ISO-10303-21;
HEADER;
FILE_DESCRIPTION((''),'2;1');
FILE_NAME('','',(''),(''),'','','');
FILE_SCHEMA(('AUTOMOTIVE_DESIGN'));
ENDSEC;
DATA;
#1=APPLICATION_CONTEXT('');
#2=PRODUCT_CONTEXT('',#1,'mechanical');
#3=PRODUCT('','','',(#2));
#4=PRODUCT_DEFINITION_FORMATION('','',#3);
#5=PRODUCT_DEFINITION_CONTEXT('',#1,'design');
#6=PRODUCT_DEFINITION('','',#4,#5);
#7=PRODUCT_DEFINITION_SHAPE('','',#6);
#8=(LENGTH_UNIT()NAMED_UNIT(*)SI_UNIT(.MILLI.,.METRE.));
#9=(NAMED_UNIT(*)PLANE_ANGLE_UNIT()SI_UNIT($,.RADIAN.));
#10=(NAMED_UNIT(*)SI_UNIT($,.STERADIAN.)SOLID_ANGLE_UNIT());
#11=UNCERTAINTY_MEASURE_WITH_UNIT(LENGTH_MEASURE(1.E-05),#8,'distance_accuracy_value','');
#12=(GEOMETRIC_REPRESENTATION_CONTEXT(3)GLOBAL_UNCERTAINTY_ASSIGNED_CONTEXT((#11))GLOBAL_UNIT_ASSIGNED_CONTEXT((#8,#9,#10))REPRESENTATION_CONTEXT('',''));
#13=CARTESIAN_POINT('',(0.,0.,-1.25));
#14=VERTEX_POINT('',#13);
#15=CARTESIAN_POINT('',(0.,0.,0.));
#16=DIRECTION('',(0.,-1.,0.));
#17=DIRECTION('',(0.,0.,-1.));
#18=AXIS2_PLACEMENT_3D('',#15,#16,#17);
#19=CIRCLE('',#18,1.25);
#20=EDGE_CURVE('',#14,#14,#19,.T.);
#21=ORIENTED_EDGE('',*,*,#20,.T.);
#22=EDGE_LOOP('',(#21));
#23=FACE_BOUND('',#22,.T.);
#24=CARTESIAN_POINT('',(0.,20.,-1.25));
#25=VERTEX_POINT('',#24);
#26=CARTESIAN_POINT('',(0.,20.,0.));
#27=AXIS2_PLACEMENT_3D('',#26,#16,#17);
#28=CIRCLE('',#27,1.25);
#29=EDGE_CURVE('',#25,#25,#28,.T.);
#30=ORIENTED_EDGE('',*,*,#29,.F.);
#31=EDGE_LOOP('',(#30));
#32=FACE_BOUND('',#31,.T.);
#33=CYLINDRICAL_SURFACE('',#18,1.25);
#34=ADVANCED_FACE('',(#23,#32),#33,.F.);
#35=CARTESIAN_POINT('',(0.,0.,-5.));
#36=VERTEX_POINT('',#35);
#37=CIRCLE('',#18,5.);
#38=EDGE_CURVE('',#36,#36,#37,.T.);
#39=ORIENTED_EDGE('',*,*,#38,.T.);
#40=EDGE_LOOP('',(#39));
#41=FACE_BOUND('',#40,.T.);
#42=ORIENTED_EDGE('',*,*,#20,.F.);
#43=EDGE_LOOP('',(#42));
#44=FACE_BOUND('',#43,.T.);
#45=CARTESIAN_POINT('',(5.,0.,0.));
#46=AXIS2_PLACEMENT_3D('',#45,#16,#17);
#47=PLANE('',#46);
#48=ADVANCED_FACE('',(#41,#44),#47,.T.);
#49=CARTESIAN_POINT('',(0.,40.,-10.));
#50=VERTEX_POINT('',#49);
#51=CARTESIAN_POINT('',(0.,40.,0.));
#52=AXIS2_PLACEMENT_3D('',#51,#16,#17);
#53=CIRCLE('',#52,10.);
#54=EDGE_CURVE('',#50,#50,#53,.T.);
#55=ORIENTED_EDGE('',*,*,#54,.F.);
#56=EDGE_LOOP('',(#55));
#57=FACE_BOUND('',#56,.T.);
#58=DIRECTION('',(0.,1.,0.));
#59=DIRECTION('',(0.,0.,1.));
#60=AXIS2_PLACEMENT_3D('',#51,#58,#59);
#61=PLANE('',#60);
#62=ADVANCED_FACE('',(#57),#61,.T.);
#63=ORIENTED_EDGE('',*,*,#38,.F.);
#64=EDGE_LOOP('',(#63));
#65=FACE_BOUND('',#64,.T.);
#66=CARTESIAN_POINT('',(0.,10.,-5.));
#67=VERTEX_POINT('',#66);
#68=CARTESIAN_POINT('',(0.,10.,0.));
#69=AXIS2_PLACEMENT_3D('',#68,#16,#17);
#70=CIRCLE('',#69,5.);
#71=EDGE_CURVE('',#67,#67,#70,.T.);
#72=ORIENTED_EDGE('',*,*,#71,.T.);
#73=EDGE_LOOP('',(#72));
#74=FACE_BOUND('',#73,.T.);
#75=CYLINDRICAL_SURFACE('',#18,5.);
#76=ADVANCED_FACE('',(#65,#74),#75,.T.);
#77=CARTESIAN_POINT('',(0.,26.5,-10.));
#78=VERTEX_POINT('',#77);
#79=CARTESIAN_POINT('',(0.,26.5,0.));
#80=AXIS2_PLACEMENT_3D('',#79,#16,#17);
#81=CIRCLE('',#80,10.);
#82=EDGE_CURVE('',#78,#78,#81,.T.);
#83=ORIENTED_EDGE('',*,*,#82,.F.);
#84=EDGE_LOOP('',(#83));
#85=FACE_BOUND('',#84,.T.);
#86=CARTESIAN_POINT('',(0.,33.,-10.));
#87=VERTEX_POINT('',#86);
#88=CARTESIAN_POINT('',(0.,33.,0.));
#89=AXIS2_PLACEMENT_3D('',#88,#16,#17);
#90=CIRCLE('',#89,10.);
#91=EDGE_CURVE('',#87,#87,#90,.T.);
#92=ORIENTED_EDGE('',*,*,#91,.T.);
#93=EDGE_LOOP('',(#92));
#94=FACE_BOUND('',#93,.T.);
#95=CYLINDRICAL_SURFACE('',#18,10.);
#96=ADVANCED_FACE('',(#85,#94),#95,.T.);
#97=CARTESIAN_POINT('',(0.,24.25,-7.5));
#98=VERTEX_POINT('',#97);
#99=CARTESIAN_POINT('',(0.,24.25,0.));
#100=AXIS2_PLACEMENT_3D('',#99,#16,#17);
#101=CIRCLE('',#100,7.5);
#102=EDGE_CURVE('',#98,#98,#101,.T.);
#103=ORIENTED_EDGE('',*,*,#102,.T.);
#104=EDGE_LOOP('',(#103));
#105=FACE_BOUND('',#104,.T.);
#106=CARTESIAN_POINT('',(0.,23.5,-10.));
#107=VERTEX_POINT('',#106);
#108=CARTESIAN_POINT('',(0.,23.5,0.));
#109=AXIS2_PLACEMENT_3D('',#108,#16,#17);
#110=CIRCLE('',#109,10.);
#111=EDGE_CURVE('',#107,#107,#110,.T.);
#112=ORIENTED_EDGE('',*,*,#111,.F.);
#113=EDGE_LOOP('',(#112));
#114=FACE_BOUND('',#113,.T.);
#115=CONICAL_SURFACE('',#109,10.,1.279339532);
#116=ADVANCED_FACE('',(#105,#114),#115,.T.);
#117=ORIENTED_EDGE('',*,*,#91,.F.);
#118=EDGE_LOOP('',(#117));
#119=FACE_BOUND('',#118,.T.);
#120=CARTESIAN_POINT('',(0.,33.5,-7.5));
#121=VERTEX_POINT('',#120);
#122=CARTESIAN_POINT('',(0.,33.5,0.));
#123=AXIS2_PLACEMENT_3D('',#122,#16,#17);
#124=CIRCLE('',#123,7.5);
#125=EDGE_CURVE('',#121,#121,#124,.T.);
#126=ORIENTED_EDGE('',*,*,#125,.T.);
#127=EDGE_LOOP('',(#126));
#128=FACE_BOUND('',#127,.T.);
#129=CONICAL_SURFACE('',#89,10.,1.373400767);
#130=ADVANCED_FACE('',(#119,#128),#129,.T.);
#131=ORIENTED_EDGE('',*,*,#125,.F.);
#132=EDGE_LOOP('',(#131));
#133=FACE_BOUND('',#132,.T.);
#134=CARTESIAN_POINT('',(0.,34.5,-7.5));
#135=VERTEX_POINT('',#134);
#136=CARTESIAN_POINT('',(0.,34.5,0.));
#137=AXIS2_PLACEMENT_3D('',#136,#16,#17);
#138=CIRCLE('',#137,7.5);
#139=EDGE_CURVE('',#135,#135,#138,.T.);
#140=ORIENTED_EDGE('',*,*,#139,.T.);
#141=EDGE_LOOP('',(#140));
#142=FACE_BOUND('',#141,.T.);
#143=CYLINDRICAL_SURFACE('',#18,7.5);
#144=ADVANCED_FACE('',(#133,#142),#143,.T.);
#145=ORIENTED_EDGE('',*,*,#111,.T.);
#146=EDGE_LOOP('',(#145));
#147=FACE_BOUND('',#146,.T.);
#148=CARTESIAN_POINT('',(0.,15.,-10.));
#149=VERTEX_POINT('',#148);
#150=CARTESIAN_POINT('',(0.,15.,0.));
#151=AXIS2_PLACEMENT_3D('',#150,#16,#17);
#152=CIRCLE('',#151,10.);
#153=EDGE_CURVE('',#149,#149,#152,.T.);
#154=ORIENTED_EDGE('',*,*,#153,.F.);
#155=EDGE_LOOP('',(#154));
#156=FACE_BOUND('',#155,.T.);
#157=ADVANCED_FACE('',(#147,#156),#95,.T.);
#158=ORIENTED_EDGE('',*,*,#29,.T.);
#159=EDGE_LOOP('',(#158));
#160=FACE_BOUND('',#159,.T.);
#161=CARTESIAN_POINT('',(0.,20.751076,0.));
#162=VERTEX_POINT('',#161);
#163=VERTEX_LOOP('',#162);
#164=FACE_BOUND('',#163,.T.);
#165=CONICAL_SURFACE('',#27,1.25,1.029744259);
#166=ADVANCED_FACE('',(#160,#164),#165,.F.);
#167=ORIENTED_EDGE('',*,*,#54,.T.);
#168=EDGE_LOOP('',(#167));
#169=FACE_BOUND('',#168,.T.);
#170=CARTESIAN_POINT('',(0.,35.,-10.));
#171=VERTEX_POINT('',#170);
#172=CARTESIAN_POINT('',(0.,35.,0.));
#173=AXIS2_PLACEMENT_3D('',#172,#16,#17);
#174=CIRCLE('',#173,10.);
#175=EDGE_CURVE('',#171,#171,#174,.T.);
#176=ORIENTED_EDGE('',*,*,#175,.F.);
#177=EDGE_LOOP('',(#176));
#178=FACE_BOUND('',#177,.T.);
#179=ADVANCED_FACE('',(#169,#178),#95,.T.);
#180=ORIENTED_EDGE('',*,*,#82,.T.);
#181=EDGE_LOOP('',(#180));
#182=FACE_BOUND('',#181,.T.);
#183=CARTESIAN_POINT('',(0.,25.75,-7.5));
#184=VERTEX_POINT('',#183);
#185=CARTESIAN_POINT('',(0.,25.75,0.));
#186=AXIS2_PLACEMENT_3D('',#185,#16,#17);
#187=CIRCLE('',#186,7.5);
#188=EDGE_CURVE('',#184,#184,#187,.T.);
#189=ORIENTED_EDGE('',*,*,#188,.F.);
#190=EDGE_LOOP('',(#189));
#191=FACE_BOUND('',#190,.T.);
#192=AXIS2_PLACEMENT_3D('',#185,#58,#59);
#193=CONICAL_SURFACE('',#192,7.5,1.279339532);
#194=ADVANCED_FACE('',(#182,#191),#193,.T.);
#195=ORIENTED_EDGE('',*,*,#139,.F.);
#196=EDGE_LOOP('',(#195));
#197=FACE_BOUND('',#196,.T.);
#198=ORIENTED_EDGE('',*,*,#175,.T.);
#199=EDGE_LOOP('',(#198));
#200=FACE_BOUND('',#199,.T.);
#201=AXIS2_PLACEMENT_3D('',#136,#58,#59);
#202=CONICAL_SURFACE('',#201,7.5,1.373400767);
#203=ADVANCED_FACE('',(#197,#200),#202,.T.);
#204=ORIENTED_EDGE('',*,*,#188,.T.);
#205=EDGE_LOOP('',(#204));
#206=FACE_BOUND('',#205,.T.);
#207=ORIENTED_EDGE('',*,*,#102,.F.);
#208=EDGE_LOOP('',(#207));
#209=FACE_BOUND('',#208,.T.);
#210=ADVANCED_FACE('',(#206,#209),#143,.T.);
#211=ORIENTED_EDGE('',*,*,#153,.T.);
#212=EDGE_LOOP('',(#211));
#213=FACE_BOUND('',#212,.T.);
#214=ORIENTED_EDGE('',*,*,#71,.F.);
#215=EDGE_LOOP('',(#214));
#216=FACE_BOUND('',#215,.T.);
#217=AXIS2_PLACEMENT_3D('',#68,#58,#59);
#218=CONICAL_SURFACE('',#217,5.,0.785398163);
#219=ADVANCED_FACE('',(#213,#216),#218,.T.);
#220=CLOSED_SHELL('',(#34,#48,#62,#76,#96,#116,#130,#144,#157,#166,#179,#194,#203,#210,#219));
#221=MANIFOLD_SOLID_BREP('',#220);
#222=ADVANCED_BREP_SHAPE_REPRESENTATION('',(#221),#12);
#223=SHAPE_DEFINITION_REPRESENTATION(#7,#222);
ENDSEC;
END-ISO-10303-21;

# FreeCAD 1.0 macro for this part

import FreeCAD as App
import Part
import Sketcher
Q = App.Units.Quantity

doc = App.newDocument("Part")
body = doc.addObject("PartDesign::Body", "Body")

sketch1 = body.newObject("Sketcher::SketchObject", "Sketch")
sketch1.AttachmentSupport = (doc.getObject("XY_Plane"), [""])
sketch1.MapMode = "FlatFace"
sketch1.addGeometry(Part.LineSegment(App.Vector(0, 40, 0), App.Vector(0, 0, 0)), False)
sketch1.addGeometry(Part.LineSegment(App.Vector(0, 0, 0), App.Vector(5, 0, 0)), False)
sketch1.addGeometry(Part.LineSegment(App.Vector(5, 0, 0), App.Vector(5, 10, 0)), False)
sketch1.addGeometry(Part.LineSegment(App.Vector(5, 10, 0), App.Vector(10, 15, 0)), False)
sketch1.addGeometry(Part.LineSegment(App.Vector(10, 15, 0), App.Vector(10, 23.5, 0)), False)
sketch1.addGeometry(Part.LineSegment(App.Vector(10, 23.5, 0), App.Vector(7.5, 24.25, 0)), False)
sketch1.addGeometry(Part.LineSegment(App.Vector(7.5, 24.25, 0), App.Vector(7.5, 25.75, 0)), False)
sketch1.addGeometry(Part.LineSegment(App.Vector(7.5, 25.75, 0), App.Vector(10, 26.5, 0)), False)
sketch1.addGeometry(Part.LineSegment(App.Vector(10, 26.5, 0), App.Vector(10, 33, 0)), False)
sketch1.addGeometry(Part.LineSegment(App.Vector(10, 33, 0), App.Vector(7.5, 33.5, 0)), False)
sketch1.addGeometry(Part.LineSegment(App.Vector(7.5, 33.5, 0), App.Vector(7.5, 34.5, 0)), False)
sketch1.addGeometry(Part.LineSegment(App.Vector(7.5, 34.5, 0), App.Vector(10, 35, 0)), False)
sketch1.addGeometry(Part.LineSegment(App.Vector(10, 35, 0), App.Vector(10, 40, 0)), False)
sketch1.addGeometry(Part.LineSegment(App.Vector(10, 40, 0), App.Vector(0, 40, 0)), False)
sketch1.addConstraint(Sketcher.Constraint("Coincident", 0, 2, 1, 1))
sketch1.addConstraint(Sketcher.Constraint("Coincident", 1, 2, 2, 1))
sketch1.addConstraint(Sketcher.Constraint("Coincident", 2, 2, 3, 1))
sketch1.addConstraint(Sketcher.Constraint("Coincident", 3, 2, 4, 1))
sketch1.addConstraint(Sketcher.Constraint("Coincident", 4, 2, 5, 1))
sketch1.addConstraint(Sketcher.Constraint("Coincident", 5, 2, 6, 1))
sketch1.addConstraint(Sketcher.Constraint("Coincident", 6, 2, 7, 1))
sketch1.addConstraint(Sketcher.Constraint("Coincident", 7, 2, 8, 1))
sketch1.addConstraint(Sketcher.Constraint("Coincident", 8, 2, 9, 1))
sketch1.addConstraint(Sketcher.Constraint("Coincident", 9, 2, 10, 1))
sketch1.addConstraint(Sketcher.Constraint("Coincident", 10, 2, 11, 1))
sketch1.addConstraint(Sketcher.Constraint("Coincident", 11, 2, 12, 1))
sketch1.addConstraint(Sketcher.Constraint("Coincident", 12, 2, 13, 1))
sketch1.addConstraint(Sketcher.Constraint("Coincident", 13, 2, 0, 1))
sketch1.addConstraint(Sketcher.Constraint("Vertical", 0))
sketch1.addConstraint(Sketcher.Constraint("Horizontal", 1))
sketch1.addConstraint(Sketcher.Constraint("Vertical", 2))
sketch1.addConstraint(Sketcher.Constraint("Vertical", 4))
sketch1.addConstraint(Sketcher.Constraint("Vertical", 6))
sketch1.addConstraint(Sketcher.Constraint("Vertical", 8))
sketch1.addConstraint(Sketcher.Constraint("Vertical", 10))
sketch1.addConstraint(Sketcher.Constraint("Vertical", 12))
sketch1.addConstraint(Sketcher.Constraint("Horizontal", 13))
sketch1.addConstraint(Sketcher.Constraint("Coincident", 0, 2, -1, 1))
sketch1.addConstraint(Sketcher.Constraint("Vertical", 4, 2, 7, 2))
sketch1.addConstraint(Sketcher.Constraint("Vertical", 6, 2, 9, 2))
sketch1.addConstraint(Sketcher.Constraint("Vertical", 8, 2, 11, 2))
sketch1.addConstraint(Sketcher.Constraint("Equal", 13, 2))
sketch1.addConstraint(Sketcher.Constraint("Equal", 1, 12))
sketch1.addConstraint(Sketcher.Constraint("Equal", 5, 7))
sketch1.addConstraint(Sketcher.Constraint("Equal", 9, 11))
sketch1.addConstraint(Sketcher.Constraint("DistanceX", 1, 1, 1, 2, 5.0))
sketch1.addConstraint(Sketcher.Constraint("DistanceX", 13, 2, 13, 1, 10.0))
sketch1.addConstraint(Sketcher.Constraint("DistanceY", 0, 2, 0, 1, 40.0))
sketch1.addConstraint(Sketcher.Constraint("DistanceY", 10, 1, 10, 2, 1.0))
sketch1.addConstraint(Sketcher.Constraint("Angle", 3, Q("45 deg")))
sketch1.addConstraint(Sketcher.Constraint("DistanceY", 4, 1, 4, 2, 8.5))
sketch1.addConstraint(Sketcher.Constraint("DistanceY", 6, 1, 6, 2, 1.5))
sketch1.addConstraint(Sketcher.Constraint("DistanceY", 8, 1, 8, 2, 6.5))
sketch1.addConstraint(Sketcher.Constraint("DistanceY", -1, 1, 8, 2, 33.0))
sketch1.addConstraint(Sketcher.Constraint("DistanceX", -1, 1, 5, 2, 7.5))
revolution = body.newObject("PartDesign::Revolution", "Revolution")
revolution.Profile = sketch1
revolution.ReferenceAxis = (sketch1, ["V_Axis"])
revolution.Angle = 360

sketch2 = body.newObject("Sketcher::SketchObject", "Sketch001")
sketch2.AttachmentSupport = (doc.getObject("XZ_Plane"), [""])
sketch2.MapMode = "FlatFace"
sketch2.addGeometry(Part.Circle(App.Vector(0, 0, 0), App.Vector(0, 0, 1), 1.25), False)
sketch2.addConstraint(Sketcher.Constraint("Coincident", 0, 3, -1, 1))
sketch2.addConstraint(Sketcher.Constraint("Diameter", 0, 2.5))
doc.recompute()
hole = body.newObject("PartDesign::Hole", "Hole")
hole.Profile = sketch2
hole.ThreadType = "None"
hole.Diameter = 2.5
hole.DepthType = "Dimension"
hole.Depth = 20
hole.DrillPoint = "Angled"
hole.DrillPointAngle = 118

doc.recompute()
